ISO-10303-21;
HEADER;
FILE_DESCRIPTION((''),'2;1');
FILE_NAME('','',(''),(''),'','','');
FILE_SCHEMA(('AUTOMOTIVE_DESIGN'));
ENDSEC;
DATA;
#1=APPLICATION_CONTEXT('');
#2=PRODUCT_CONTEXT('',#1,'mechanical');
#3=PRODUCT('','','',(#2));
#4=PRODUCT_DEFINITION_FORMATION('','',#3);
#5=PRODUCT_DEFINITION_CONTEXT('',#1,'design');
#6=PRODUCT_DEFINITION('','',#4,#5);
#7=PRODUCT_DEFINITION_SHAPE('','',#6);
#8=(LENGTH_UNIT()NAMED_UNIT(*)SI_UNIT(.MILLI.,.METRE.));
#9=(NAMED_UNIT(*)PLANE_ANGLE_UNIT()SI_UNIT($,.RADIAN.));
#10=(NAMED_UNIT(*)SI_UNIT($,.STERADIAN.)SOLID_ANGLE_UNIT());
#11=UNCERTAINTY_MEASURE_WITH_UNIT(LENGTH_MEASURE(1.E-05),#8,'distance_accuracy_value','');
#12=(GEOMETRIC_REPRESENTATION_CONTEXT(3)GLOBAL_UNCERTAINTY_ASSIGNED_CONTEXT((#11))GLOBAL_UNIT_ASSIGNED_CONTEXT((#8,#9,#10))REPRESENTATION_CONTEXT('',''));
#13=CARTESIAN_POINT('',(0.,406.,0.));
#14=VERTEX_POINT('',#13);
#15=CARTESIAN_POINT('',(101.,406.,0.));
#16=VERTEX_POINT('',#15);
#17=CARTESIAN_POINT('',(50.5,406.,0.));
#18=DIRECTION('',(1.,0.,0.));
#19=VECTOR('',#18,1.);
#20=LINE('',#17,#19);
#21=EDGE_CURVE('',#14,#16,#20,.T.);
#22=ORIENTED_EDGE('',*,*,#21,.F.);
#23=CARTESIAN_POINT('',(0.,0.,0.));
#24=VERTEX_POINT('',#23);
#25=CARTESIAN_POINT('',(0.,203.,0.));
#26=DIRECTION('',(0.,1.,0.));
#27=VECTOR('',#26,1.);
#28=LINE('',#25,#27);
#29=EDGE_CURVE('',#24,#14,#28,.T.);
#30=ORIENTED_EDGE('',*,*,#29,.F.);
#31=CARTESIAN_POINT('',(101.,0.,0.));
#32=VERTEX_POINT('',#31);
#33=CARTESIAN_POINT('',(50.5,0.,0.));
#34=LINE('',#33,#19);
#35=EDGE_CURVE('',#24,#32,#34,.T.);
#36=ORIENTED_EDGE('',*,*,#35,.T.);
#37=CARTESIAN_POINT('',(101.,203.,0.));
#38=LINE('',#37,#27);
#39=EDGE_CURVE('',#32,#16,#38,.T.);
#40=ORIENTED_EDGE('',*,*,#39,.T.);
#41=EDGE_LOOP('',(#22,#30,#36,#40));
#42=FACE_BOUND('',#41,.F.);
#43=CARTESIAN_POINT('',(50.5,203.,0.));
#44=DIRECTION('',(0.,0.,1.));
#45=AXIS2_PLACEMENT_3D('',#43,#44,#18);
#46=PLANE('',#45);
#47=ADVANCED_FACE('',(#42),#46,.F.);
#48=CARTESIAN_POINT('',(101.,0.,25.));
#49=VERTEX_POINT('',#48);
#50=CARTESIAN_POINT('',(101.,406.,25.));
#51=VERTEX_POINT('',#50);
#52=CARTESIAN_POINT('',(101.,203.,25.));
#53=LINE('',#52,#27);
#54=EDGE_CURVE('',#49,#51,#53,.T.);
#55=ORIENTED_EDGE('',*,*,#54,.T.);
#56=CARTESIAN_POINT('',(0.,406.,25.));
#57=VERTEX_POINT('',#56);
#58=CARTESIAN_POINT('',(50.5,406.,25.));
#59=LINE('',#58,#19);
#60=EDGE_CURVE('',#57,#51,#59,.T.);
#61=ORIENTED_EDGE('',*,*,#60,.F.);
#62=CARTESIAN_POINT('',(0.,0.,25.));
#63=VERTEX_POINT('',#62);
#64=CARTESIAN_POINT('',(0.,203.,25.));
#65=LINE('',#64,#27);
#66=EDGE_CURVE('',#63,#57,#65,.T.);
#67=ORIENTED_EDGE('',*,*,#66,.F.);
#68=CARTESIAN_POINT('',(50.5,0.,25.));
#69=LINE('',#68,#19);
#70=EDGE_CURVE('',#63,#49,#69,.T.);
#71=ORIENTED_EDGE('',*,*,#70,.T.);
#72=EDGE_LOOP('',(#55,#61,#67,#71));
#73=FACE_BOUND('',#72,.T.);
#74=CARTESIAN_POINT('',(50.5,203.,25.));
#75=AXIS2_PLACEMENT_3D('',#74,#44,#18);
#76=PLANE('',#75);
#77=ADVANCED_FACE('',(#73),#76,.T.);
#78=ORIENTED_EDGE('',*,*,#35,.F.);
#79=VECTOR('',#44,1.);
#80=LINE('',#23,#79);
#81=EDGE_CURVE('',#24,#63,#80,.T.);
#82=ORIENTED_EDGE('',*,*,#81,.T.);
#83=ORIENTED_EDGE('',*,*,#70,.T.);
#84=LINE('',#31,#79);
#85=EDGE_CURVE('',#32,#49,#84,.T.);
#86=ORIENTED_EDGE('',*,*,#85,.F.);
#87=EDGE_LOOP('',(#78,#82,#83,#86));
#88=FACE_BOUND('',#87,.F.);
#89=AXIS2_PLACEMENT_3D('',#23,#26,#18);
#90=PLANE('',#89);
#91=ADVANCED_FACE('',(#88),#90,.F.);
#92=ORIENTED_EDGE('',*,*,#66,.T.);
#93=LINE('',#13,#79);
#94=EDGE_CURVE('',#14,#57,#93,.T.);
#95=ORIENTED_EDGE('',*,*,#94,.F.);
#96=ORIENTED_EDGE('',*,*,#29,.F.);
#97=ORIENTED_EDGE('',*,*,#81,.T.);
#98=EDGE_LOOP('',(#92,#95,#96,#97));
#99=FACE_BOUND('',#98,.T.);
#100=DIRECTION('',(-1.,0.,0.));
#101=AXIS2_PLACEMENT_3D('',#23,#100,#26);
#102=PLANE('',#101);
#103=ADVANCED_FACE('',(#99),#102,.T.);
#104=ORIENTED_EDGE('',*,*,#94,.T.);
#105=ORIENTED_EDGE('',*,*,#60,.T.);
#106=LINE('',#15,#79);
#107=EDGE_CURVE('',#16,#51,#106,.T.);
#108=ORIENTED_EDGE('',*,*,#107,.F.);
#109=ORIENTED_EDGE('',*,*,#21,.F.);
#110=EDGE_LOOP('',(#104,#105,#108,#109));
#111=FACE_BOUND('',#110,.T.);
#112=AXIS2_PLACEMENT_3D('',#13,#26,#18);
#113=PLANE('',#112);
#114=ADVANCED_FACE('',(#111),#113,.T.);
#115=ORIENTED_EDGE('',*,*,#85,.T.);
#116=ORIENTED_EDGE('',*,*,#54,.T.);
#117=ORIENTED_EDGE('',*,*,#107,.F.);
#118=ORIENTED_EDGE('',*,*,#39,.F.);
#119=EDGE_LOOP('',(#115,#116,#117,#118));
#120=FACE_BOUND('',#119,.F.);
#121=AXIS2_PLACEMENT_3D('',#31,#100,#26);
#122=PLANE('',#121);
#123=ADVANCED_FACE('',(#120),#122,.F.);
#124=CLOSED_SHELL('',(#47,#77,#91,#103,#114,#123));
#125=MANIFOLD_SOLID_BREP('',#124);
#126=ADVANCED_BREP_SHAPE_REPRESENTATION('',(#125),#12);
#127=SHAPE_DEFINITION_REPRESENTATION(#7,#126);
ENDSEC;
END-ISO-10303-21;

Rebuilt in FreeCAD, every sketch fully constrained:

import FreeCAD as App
import Part
import Sketcher
from FreeCAD import Vector
Q = App.Units.Quantity


def add_polygon(sketch, points):
    """Adds a closed chain of lines whose ends are joined by coincident constraints."""
    first, n = sketch.GeometryCount, len(points)
    for a, b in zip(points, points[1:] + points[:1]):
        sketch.addGeometry(Part.LineSegment(App.Vector(*a, 0), App.Vector(*b, 0)), False)
    for i in range(n):
        sketch.addConstraint(Sketcher.Constraint("Coincident", first + i, 2, first + (i + 1) % n, 1))

doc = App.newDocument("Part")
params = doc.addObject("Spreadsheet::Sheet", "Params")
for row, (alias, value) in enumerate([
    ("sketch1_width", "101 mm"),
    ("sketch1_height", "406 mm"),
    ("pad1_length", "25 mm"),
], start=1):
    params.set(f"A{row}", alias)
    params.set(f"B{row}", "=" + value)
    params.setAlias(f"B{row}", alias)

body = doc.addObject("PartDesign::Body", "Body")

# Sketch on XY plane
sketch1 = body.newObject("Sketcher::SketchObject", "Sketch")
sketch1.AttachmentSupport = (doc.getObject("XY_Plane"), [""])
sketch1.MapMode = "FlatFace"
add_polygon(sketch1, [(0, 406), (0, 0), (101, 0), (101, 406)])  # lines 0-3
sketch1.addConstraint(Sketcher.Constraint("Vertical", 0))
sketch1.addConstraint(Sketcher.Constraint("Horizontal", 1))
sketch1.addConstraint(Sketcher.Constraint("Vertical", 2))
sketch1.addConstraint(Sketcher.Constraint("Horizontal", 3))
sketch1.addConstraint(Sketcher.Constraint("Coincident", 0, 2, -1, 1))
sketch1.addConstraint(Sketcher.Constraint("DistanceX", 1, 1, 1, 2, Q("101 mm")))
sketch1.addConstraint(Sketcher.Constraint("DistanceY", 0, 2, 0, 1, Q("406 mm")))
sketch1.setExpression("Constraints[9]", "Params.sketch1_width")
sketch1.setExpression("Constraints[10]", "Params.sketch1_height")
pad1 = body.newObject("PartDesign::Pad", "Pad")
pad1.Profile = sketch1
pad1.setExpression("Length", "Params.pad1_length")

doc.recompute()
